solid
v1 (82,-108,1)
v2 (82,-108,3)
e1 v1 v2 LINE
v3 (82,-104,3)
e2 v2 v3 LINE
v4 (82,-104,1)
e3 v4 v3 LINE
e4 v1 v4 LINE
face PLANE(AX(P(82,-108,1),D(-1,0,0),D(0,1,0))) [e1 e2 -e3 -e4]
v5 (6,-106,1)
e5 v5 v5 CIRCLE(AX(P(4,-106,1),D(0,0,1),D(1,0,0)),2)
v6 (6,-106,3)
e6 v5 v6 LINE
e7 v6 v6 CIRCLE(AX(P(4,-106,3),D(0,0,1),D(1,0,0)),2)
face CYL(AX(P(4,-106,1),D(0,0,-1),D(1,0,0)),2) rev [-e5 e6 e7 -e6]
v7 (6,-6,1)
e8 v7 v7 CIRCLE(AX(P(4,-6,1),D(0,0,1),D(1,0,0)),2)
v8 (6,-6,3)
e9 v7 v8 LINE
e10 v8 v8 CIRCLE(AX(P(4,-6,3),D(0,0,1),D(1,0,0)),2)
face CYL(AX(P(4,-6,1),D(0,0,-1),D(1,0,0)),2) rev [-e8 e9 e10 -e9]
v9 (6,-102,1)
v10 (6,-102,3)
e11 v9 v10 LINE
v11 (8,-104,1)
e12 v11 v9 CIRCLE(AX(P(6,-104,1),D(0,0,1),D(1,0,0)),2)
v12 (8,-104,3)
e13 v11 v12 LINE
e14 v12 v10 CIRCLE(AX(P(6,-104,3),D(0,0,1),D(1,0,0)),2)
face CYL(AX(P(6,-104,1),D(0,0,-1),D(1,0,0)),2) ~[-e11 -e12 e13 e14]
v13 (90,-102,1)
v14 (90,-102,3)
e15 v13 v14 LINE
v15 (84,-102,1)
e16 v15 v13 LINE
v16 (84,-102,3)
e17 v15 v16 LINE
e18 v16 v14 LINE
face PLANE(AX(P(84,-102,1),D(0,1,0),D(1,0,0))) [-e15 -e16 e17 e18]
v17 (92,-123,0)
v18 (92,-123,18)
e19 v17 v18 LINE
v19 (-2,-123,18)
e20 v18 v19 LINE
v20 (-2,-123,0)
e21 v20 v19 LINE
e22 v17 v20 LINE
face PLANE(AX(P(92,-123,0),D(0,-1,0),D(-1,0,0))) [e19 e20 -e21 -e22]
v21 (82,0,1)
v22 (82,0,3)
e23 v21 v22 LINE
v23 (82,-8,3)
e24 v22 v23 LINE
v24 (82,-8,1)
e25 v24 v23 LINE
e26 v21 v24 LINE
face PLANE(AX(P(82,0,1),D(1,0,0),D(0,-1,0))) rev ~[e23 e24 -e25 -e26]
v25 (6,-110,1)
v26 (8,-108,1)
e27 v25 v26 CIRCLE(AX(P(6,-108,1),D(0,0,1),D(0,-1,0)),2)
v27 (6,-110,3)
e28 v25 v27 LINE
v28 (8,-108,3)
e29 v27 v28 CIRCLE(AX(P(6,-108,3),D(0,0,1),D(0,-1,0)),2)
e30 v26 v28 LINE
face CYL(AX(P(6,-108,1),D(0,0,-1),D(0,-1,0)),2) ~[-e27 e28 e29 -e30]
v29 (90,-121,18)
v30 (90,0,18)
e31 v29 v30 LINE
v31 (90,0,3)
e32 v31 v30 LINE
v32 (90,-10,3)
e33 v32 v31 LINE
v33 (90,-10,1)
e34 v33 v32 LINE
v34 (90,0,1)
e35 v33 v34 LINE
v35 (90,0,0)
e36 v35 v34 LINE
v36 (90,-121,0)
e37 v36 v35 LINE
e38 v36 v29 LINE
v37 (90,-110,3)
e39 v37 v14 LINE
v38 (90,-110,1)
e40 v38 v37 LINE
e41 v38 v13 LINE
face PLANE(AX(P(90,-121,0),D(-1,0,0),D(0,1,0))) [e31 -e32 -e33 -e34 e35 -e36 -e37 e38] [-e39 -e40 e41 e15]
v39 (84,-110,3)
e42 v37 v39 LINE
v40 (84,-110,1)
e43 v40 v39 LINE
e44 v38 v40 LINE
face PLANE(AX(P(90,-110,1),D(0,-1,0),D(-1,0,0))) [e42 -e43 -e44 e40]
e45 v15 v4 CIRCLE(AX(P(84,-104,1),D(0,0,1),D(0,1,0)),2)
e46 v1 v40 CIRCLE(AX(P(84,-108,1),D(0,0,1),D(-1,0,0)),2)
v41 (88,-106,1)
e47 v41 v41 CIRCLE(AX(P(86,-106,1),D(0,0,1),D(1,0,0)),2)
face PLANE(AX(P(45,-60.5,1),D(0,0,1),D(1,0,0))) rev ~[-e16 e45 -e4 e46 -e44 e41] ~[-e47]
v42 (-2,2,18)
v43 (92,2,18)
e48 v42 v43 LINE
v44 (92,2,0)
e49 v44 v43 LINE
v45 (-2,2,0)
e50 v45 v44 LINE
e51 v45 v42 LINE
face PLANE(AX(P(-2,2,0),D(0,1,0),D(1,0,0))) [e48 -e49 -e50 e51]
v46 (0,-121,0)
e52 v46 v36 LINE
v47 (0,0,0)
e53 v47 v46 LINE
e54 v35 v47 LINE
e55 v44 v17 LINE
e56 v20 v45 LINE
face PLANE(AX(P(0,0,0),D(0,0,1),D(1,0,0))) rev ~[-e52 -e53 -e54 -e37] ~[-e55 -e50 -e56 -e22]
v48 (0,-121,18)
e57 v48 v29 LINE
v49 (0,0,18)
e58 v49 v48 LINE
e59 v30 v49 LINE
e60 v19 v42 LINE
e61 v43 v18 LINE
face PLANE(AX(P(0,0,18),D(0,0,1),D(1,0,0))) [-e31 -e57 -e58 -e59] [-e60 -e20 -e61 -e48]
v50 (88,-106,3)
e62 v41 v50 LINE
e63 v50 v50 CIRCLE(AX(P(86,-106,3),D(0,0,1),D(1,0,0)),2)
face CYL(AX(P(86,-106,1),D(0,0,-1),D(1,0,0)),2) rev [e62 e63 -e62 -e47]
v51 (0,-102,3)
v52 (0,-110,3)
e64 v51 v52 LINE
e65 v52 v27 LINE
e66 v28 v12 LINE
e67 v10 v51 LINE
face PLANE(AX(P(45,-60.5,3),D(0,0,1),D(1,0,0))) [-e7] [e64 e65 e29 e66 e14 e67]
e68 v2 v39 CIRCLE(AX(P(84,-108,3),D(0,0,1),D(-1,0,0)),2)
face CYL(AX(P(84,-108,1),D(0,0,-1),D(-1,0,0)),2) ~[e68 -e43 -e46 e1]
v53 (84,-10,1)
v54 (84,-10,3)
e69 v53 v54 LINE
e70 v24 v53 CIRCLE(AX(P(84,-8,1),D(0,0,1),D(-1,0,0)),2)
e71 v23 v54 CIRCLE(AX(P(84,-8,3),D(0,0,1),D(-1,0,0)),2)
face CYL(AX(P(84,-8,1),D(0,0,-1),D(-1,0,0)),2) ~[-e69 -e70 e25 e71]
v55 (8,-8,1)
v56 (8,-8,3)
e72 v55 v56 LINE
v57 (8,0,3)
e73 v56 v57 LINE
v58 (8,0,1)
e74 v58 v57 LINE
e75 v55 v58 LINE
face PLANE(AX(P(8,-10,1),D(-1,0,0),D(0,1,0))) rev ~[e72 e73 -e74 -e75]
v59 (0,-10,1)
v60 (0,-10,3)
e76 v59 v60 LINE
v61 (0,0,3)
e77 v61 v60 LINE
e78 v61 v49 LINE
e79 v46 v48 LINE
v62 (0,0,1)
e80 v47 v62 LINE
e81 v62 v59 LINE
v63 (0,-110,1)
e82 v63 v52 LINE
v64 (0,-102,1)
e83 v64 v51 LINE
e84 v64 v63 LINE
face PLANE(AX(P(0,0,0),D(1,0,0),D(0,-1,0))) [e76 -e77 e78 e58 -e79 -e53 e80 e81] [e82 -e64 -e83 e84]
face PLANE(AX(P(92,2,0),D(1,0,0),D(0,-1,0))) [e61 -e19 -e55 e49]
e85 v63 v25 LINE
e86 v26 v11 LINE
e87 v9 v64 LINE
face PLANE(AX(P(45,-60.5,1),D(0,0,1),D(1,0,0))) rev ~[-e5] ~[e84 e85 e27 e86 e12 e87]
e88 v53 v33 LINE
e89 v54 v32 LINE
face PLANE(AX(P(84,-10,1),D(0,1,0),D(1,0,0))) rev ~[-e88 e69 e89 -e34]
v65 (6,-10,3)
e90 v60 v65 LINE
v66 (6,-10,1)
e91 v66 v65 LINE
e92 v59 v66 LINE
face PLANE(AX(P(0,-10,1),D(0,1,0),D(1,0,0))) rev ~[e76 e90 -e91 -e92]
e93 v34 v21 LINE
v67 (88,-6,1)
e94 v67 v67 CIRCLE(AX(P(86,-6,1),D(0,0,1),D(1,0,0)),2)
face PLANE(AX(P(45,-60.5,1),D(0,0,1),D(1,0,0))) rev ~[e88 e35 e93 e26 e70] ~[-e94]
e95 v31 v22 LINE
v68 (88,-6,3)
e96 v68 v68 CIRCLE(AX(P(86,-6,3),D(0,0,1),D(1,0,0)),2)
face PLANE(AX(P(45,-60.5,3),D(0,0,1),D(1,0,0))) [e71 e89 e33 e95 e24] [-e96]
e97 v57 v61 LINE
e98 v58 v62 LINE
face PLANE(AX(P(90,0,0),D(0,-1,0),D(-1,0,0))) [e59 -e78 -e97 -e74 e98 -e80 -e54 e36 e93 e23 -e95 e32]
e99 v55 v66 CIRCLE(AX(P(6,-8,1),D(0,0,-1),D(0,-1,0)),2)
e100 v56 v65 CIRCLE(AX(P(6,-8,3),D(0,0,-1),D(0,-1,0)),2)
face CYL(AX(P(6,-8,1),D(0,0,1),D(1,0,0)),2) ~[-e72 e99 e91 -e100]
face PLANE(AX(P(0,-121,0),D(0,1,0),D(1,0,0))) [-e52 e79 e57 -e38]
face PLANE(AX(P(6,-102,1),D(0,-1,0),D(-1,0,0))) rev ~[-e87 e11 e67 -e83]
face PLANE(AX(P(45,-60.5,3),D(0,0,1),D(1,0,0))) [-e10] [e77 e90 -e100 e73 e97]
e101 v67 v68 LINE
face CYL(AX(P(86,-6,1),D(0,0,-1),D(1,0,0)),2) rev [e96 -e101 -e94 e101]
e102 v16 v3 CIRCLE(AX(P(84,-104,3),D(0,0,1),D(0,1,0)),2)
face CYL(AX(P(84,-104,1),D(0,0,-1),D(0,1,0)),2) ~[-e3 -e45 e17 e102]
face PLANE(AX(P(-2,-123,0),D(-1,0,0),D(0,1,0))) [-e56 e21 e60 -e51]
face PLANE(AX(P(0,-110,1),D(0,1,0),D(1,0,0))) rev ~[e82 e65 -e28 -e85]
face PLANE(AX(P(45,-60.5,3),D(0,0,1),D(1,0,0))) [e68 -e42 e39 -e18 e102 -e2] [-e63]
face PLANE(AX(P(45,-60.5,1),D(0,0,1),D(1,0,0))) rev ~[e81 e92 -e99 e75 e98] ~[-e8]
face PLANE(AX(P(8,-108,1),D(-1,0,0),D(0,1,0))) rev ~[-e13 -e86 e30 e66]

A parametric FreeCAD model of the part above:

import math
import FreeCAD as App
import Part
import Sketcher

V = App.Vector


def edges_at(feature, points):
    """Names of the edges that pass closest to the given points."""
    edges = feature.Shape.Edges
    near = lambda p: min(range(len(edges)), key=lambda i: edges[i].distToShape(Part.Vertex(*p))[0])
    return sorted({f"Edge{near(p) + 1}" for p in points})


def add_polygon(sketch, points):
    """Adds a closed chain of lines whose ends are joined by coincident constraints."""
    first, n = sketch.GeometryCount, len(points)
    for a, b in zip(points, points[1:] + points[:1]):
        sketch.addGeometry(Part.LineSegment(App.Vector(*a, 0), App.Vector(*b, 0)), False)
    for i in range(n):
        sketch.addConstraint(Sketcher.Constraint("Coincident", first + i, 2, first + (i + 1) % n, 1))

doc = App.newDocument("Part")
params = doc.addObject("Spreadsheet::Sheet", "Params")
for row, (alias, value) in enumerate([
    ("sketch1_width", "94 mm"),
    ("sketch1_height", "125 mm"),
    ("pad1_length", "18 mm"),
    ("sketch2_diameter", "4 mm"),
    ("sketch2_width", "6 mm"),
    ("pad2_length", "2 mm"),
    ("fillet_radius", "2 mm"),
], start=1):
    params.set(f"A{row}", alias)
    params.set(f"B{row}", "=" + value)
    params.setAlias(f"B{row}", alias)

body = doc.addObject("PartDesign::Body", "Body")

# Sketch on XY plane
sketch1 = doc.addObject("Sketcher::SketchObject", "Sketch")
body.addObject(sketch1)
sketch1.AttachmentSupport = (doc.XY_Plane, [""])
sketch1.MapMode = "FlatFace"
add_polygon(sketch1, [(92, -123), (92, 2), (-2, 2), (-2, -123)])  # lines 0-3
add_polygon(sketch1, [(90, -121), (0, -121), (0, 0), (90, 0)])  # lines 4-7
sketch1.addConstraint(Sketcher.Constraint("Vertical", 0))
sketch1.addConstraint(Sketcher.Constraint("Horizontal", 1))
sketch1.addConstraint(Sketcher.Constraint("Vertical", 2))
sketch1.addConstraint(Sketcher.Constraint("Horizontal", 3))
sketch1.addConstraint(Sketcher.Constraint("Horizontal", 4))
sketch1.addConstraint(Sketcher.Constraint("Vertical", 5))
sketch1.addConstraint(Sketcher.Constraint("Horizontal", 6))
sketch1.addConstraint(Sketcher.Constraint("Vertical", 7))
sketch1.addConstraint(Sketcher.Constraint("Coincident", 5, 2, -1, 1))
sketch1.addConstraint(Sketcher.Constraint("DistanceY", -1, 1, 0, 2, 2.0))
sketch1.addConstraint(Sketcher.Constraint("DistanceX", 1, 2, -1, 1, 2.0))
sketch1.addConstraint(Sketcher.Constraint("DistanceY", 2, 2, 4, 2, 2.0))
sketch1.addConstraint(Sketcher.Constraint("DistanceX", 6, 2, 0, 2, 2.0))
sketch1.addConstraint(Sketcher.Constraint("DistanceX", 1, 2, 1, 1, 94.0))
sketch1.addConstraint(Sketcher.Constraint("DistanceY", 0, 1, 0, 2, 125.0))
sketch1.setExpression("Constraints[21]", "Params.sketch1_width")
sketch1.setExpression("Constraints[22]", "Params.sketch1_height")
pad1 = doc.addObject("PartDesign::Pad", "Pad")
body.addObject(pad1)
pad1.Profile = sketch1
pad1.setExpression("Length", "Params.pad1_length")

# Sketch on XY plane
sketch2 = doc.addObject("Sketcher::SketchObject", "Sketch001")
body.addObject(sketch2)
sketch2.AttachmentSupport = (doc.XY_Plane, [""])
sketch2.MapMode = "FlatFace"
sketch2.AttachmentOffset = App.Placement(V(0, 0, 1), App.Rotation())
sketch2.addGeometry(Part.LineSegment(V(84, -110, 0), V(90, -110, 0)), False)  # 0
sketch2.addGeometry(Part.LineSegment(V(90, -110, 0), V(90, -102, 0)), False)  # 1
sketch2.addGeometry(Part.LineSegment(V(90, -102, 0), V(84, -102, 0)), False)  # 2
sketch2.addGeometry(Part.ArcOfCircle(Part.Circle(V(84, -104, 0), V(0, 0, 1), 2), math.radians(90), math.radians(180)), False)  # 3
sketch2.addGeometry(Part.LineSegment(V(82, -104, 0), V(82, -108, 0)), False)  # 4
sketch2.addGeometry(Part.ArcOfCircle(Part.Circle(V(84, -108, 0), V(0, 0, 1), 2), math.radians(180), math.radians(270)), False)  # 5
sketch2.addGeometry(Part.Circle(V(86, -106, 0), V(0, 0, 1), 2), False)  # 6
sketch2.addGeometry(Part.LineSegment(V(0, -102, 0), V(0, -110, 0)), False)  # 7
sketch2.addGeometry(Part.LineSegment(V(0, -110, 0), V(6, -110, 0)), False)  # 8
sketch2.addGeometry(Part.ArcOfCircle(Part.Circle(V(6, -108, 0), V(0, 0, 1), 2), math.radians(-90), math.radians(0)), False)  # 9
sketch2.addGeometry(Part.LineSegment(V(8, -108, 0), V(8, -104, 0)), False)  # 10
sketch2.addGeometry(Part.ArcOfCircle(Part.Circle(V(6, -104, 0), V(0, 0, 1), 2), math.radians(0), math.radians(90)), False)  # 11
sketch2.addGeometry(Part.LineSegment(V(6, -102, 0), V(0, -102, 0)), False)  # 12
sketch2.addGeometry(Part.Circle(V(4, -106, 0), V(0, 0, 1), 2), False)  # 13
sketch2.addGeometry(Part.LineSegment(V(84, -10, 0), V(90, -10, 0)), False)  # 14
sketch2.addGeometry(Part.LineSegment(V(90, -10, 0), V(90, 0, 0)), False)  # 15
sketch2.addGeometry(Part.LineSegment(V(90, 0, 0), V(82, 0, 0)), False)  # 16
sketch2.addGeometry(Part.LineSegment(V(82, 0, 0), V(82, -8, 0)), False)  # 17
sketch2.addGeometry(Part.ArcOfCircle(Part.Circle(V(84, -8, 0), V(0, 0, 1), 2), math.radians(180), math.radians(270)), False)  # 18
sketch2.addGeometry(Part.Circle(V(86, -6, 0), V(0, 0, 1), 2), False)  # 19
add_polygon(sketch2, [(0, 0), (0, -10), (8, -10), (8, 0)])  # lines 20-23
sketch2.addGeometry(Part.Circle(V(4, -6, 0), V(0, 0, 1), 2), False)  # 24
sketch2.addConstraint(Sketcher.Constraint("Coincident", 0, 2, 1, 1))
sketch2.addConstraint(Sketcher.Constraint("Coincident", 1, 2, 2, 1))
sketch2.addConstraint(Sketcher.Constraint("Tangent", 2, 2, 3, 1))
sketch2.addConstraint(Sketcher.Constraint("Tangent", 3, 2, 4, 1))
sketch2.addConstraint(Sketcher.Constraint("Tangent", 4, 2, 5, 1))
sketch2.addConstraint(Sketcher.Constraint("Tangent", 5, 2, 0, 1))
sketch2.addConstraint(Sketcher.Constraint("Coincident", 7, 2, 8, 1))
sketch2.addConstraint(Sketcher.Constraint("Tangent", 8, 2, 9, 1))
sketch2.addConstraint(Sketcher.Constraint("Tangent", 9, 2, 10, 1))
sketch2.addConstraint(Sketcher.Constraint("Tangent", 10, 2, 11, 1))
sketch2.addConstraint(Sketcher.Constraint("Tangent", 11, 2, 12, 1))
sketch2.addConstraint(Sketcher.Constraint("Coincident", 12, 2, 7, 1))
sketch2.addConstraint(Sketcher.Constraint("Coincident", 14, 2, 15, 1))
sketch2.addConstraint(Sketcher.Constraint("Coincident", 15, 2, 16, 1))
sketch2.addConstraint(Sketcher.Constraint("Coincident", 16, 2, 17, 1))
sketch2.addConstraint(Sketcher.Constraint("Tangent", 17, 2, 18, 1))
sketch2.addConstraint(Sketcher.Constraint("Tangent", 18, 2, 14, 1))
sketch2.addConstraint(Sketcher.Constraint("Horizontal", 0))
sketch2.addConstraint(Sketcher.Constraint("Vertical", 1))
sketch2.addConstraint(Sketcher.Constraint("Horizontal", 2))
sketch2.addConstraint(Sketcher.Constraint("Vertical", 4))
sketch2.addConstraint(Sketcher.Constraint("Vertical", 7))
sketch2.addConstraint(Sketcher.Constraint("Horizontal", 8))
sketch2.addConstraint(Sketcher.Constraint("Vertical", 10))
sketch2.addConstraint(Sketcher.Constraint("Horizontal", 12))
sketch2.addConstraint(Sketcher.Constraint("Horizontal", 14))
sketch2.addConstraint(Sketcher.Constraint("Vertical", 15))
sketch2.addConstraint(Sketcher.Constraint("Horizontal", 16))
sketch2.addConstraint(Sketcher.Constraint("Vertical", 17))
sketch2.addConstraint(Sketcher.Constraint("Vertical", 20))
sketch2.addConstraint(Sketcher.Constraint("Horizontal", 21))
sketch2.addConstraint(Sketcher.Constraint("Vertical", 22))
sketch2.addConstraint(Sketcher.Constraint("Horizontal", 23))
sketch2.addConstraint(Sketcher.Constraint("Coincident", 23, 2, -1, 1))
sketch2.addConstraint(Sketcher.Constraint("Equal", 3, 5))
sketch2.addConstraint(Sketcher.Constraint("Equal", 5, 6))
sketch2.addConstraint(Sketcher.Constraint("Equal", 6, 9))
sketch2.addConstraint(Sketcher.Constraint("Equal", 9, 11))
sketch2.addConstraint(Sketcher.Constraint("Equal", 11, 13))
sketch2.addConstraint(Sketcher.Constraint("Equal", 13, 18))
sketch2.addConstraint(Sketcher.Constraint("Equal", 18, 19))
sketch2.addConstraint(Sketcher.Constraint("Equal", 19, 24))
sketch2.addConstraint(Sketcher.Constraint("PointOnObject", 7, 2, -2))
sketch2.addConstraint(Sketcher.Constraint("PointOnObject", 15, 2, -1))
sketch2.addConstraint(Sketcher.Constraint("Horizontal", 5, 3, 9, 3))
sketch2.addConstraint(Sketcher.Constraint("Horizontal", 3, 3, 11, 3))
sketch2.addConstraint(Sketcher.Constraint("Horizontal", 6, 3, 13, 3))
sketch2.addConstraint(Sketcher.Constraint("Horizontal", 19, 3, 24, 3))
sketch2.addConstraint(Sketcher.Constraint("Horizontal", 18, 2, 20, 2))
sketch2.addConstraint(Sketcher.Constraint("Vertical", 5, 3, 18, 3))
sketch2.addConstraint(Sketcher.Constraint("Vertical", 6, 3, 19, 3))
sketch2.addConstraint(Sketcher.Constraint("Vertical", 13, 3, 24, 3))
sketch2.addConstraint(Sketcher.Constraint("Vertical", 1, 2, 14, 2))
sketch2.addConstraint(Sketcher.Constraint("Vertical", 10, 2, 21, 2))
sketch2.addConstraint(Sketcher.Constraint("Equal", 2, 8))
sketch2.addConstraint(Sketcher.Constraint("Equal", 23, 1))
sketch2.addConstraint(Sketcher.Constraint("Equal", 7, 17))
sketch2.addConstraint(Sketcher.Constraint("Diameter", 6, 4.0))
sketch2.addConstraint(Sketcher.Constraint("DistanceX", 0, 1, 0, 2, 6.0))
sketch2.addConstraint(Sketcher.Constraint("DistanceX", -1, 1, 3, 3, 84.0))
sketch2.addConstraint(Sketcher.Constraint("DistanceY", 3, 3, -1, 1, 104.0))
sketch2.addConstraint(Sketcher.Constraint("DistanceX", -1, 1, 6, 3, 86.0))
sketch2.addConstraint(Sketcher.Constraint("DistanceY", 6, 3, -1, 1, 106.0))
sketch2.addConstraint(Sketcher.Constraint("DistanceX", -1, 1, 13, 3, 4.0))
sketch2.addConstraint(Sketcher.Constraint("DistanceY", 19, 3, -1, 1, 6.0))
sketch2.setExpression("Constraints[61]", "Params.sketch2_diameter")
sketch2.setExpression("Constraints[62]", "Params.sketch2_width")
pad2 = doc.addObject("PartDesign::Pad", "Pad001")
body.addObject(pad2)
pad2.Profile = sketch2
pad2.setExpression("Length", "Params.pad2_length")
doc.recompute()

fillet = doc.addObject("PartDesign::Fillet", "Fillet")
body.addObject(fillet)
fillet.Base = (pad2, edges_at(pad2, [(8, -10, 2)]))
fillet.setExpression("Radius", "Params.fillet_radius")

doc.recompute()
